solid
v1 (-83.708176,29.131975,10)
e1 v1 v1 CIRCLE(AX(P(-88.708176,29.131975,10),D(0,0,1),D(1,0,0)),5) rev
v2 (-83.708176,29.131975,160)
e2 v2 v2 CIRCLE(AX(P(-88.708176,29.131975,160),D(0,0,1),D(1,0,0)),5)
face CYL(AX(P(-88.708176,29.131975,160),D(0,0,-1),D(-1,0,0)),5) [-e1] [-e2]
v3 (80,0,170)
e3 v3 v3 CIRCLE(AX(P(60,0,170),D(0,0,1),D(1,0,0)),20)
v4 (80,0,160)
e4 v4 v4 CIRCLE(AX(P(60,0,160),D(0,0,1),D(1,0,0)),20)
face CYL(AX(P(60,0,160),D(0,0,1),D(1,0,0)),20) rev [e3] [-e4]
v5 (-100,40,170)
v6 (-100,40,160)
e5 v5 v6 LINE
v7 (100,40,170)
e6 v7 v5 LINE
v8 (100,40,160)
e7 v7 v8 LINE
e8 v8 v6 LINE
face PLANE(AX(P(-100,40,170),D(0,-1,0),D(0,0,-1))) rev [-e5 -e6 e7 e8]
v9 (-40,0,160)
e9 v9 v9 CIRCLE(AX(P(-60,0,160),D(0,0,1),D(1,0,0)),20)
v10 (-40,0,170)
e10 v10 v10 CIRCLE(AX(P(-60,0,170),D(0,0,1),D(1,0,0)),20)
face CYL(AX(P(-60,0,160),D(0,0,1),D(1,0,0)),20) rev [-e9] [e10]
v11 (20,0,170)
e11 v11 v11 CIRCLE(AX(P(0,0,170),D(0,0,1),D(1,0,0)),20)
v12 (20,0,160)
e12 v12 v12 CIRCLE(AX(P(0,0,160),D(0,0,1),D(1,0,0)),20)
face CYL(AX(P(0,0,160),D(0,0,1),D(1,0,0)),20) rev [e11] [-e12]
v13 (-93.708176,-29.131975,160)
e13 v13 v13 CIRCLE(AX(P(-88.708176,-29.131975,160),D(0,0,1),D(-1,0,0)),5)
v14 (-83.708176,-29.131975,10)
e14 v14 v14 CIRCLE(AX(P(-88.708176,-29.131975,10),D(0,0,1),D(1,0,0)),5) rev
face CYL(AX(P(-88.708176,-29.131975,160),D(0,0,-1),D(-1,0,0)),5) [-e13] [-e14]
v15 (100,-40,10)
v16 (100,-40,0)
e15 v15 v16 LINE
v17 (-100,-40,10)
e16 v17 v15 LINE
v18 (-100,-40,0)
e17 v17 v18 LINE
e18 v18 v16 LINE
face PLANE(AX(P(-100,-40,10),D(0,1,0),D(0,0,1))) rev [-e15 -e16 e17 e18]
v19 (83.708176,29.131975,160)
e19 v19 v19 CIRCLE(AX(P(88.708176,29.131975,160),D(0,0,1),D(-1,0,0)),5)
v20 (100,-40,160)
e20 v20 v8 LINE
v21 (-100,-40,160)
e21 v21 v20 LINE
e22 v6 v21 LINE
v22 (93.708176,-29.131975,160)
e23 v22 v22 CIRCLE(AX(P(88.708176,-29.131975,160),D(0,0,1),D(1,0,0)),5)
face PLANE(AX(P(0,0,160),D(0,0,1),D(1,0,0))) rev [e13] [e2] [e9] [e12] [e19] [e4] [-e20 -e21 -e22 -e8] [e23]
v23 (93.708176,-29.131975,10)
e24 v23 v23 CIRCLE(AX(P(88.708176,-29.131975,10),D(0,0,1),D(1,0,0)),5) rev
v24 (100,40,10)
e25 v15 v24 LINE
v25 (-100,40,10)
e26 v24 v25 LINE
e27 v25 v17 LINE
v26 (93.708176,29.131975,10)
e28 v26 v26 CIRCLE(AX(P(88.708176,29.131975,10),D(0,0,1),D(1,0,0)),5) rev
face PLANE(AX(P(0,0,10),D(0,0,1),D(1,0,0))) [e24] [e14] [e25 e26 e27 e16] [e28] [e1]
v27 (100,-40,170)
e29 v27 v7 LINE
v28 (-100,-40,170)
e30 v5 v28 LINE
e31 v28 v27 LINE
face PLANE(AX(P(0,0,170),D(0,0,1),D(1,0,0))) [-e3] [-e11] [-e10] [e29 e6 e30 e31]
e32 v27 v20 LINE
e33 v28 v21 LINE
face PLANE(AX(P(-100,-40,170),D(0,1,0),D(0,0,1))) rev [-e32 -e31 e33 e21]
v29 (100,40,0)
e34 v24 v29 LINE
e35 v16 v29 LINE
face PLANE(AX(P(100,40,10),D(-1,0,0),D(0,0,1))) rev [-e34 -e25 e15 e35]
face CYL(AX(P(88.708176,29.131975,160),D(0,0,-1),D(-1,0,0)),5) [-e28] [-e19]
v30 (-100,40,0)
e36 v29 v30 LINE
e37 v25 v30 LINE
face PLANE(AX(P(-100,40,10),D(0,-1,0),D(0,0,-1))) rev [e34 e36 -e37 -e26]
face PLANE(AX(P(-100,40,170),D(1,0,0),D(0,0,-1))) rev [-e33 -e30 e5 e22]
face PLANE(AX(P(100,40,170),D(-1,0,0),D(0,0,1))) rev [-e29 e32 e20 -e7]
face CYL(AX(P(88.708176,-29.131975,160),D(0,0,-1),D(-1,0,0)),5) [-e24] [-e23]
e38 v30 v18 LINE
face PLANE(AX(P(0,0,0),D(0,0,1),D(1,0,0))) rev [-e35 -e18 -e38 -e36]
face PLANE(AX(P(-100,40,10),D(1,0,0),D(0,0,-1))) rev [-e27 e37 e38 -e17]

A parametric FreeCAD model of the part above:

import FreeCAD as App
import Part
import Sketcher
from FreeCAD import Vector
Q = App.Units.Quantity


def add_polygon(sketch, points):
    """Adds a closed chain of lines whose ends are joined by coincident constraints."""
    first, n = sketch.GeometryCount, len(points)
    for a, b in zip(points, points[1:] + points[:1]):
        sketch.addGeometry(Part.LineSegment(App.Vector(*a, 0), App.Vector(*b, 0)), False)
    for i in range(n):
        sketch.addConstraint(Sketcher.Constraint("Coincident", first + i, 2, first + (i + 1) % n, 1))

doc = App.newDocument("Part")
params = doc.addObject("Spreadsheet::Sheet", "Params")
for row, (alias, value) in enumerate([
    ("sketch1_width", "200 mm"),
    ("sketch1_height", "80 mm"),
    ("pad1_length", "10 mm"),
    ("sketch2_diameter", "10 mm"),
    ("pad2_length", "160 mm"),
    ("sketch3_width", "200 mm"),
    ("sketch3_height", "80 mm"),
    ("pad3_length", "10 mm"),
    ("sketch4_diameter", "40 mm"),
    ("pocket1_length", "10 mm"),
], start=1):
    params.set(f"A{row}", alias)
    params.set(f"B{row}", "=" + value)
    params.setAlias(f"B{row}", alias)

body = doc.addObject("PartDesign::Body", "Body")

# Sketch on XY plane
sketch1 = doc.addObject("Sketcher::SketchObject", "Sketch")
body.addObject(sketch1)
sketch1.AttachmentSupport = (doc.XY_Plane, [""])
sketch1.MapMode = "FlatFace"
add_polygon(sketch1, [(-100, 40), (-100, -40), (100, -40), (100, 40)])  # lines 0-3
sketch1.addConstraint(Sketcher.Constraint("Vertical", 0))
sketch1.addConstraint(Sketcher.Constraint("Horizontal", 1))
sketch1.addConstraint(Sketcher.Constraint("Vertical", 2))
sketch1.addConstraint(Sketcher.Constraint("Horizontal", 3))
sketch1.addConstraint(Sketcher.Constraint("Symmetric", 0, 2, 2, 2, -1, 1))
sketch1.addConstraint(Sketcher.Constraint("DistanceX", 1, 1, 1, 2, Q("200 mm")))
sketch1.addConstraint(Sketcher.Constraint("DistanceY", 0, 2, 0, 1, Q("80 mm")))
sketch1.setExpression("Constraints[9]", "Params.sketch1_width")
sketch1.setExpression("Constraints[10]", "Params.sketch1_height")
pad1 = doc.addObject("PartDesign::Pad", "Pad")
body.addObject(pad1)
pad1.Profile = sketch1
pad1.setExpression("Length", "Params.pad1_length")

# Sketch on XY plane
sketch2 = doc.addObject("Sketcher::SketchObject", "Sketch001")
body.addObject(sketch2)
sketch2.AttachmentSupport = (doc.XY_Plane, [""])
sketch2.MapMode = "FlatFace"
sketch2.addGeometry(Part.Circle(Vector(-88.708176, 29.131975, 0), Vector(0, 0, 1), 5), False)
sketch2.addGeometry(Part.Circle(Vector(88.708176, 29.131975, 0), Vector(0, 0, 1), 5), False)
sketch2.addGeometry(Part.Circle(Vector(88.708176, -29.131975, 0), Vector(0, 0, 1), 5), False)
sketch2.addGeometry(Part.Circle(Vector(-88.708176, -29.131975, 0), Vector(0, 0, 1), 5), False)
sketch2.addConstraint(Sketcher.Constraint("Equal", 0, 1))
sketch2.addConstraint(Sketcher.Constraint("Equal", 1, 2))
sketch2.addConstraint(Sketcher.Constraint("Equal", 2, 3))
sketch2.addConstraint(Sketcher.Constraint("Symmetric", 0, 3, 2, 3, -1, 1))
sketch2.addConstraint(Sketcher.Constraint("Symmetric", 1, 3, 3, 3, -1, 1))
sketch2.addConstraint(Sketcher.Constraint("Symmetric", 0, 3, 1, 3, -2))
sketch2.addConstraint(Sketcher.Constraint("Diameter", 0, Q("10 mm")))
sketch2.addConstraint(Sketcher.Constraint("DistanceX", 0, 3, 1, 3, Q("177.416351 mm")))
sketch2.addConstraint(Sketcher.Constraint("DistanceY", 2, 3, 1, 3, Q("58.26395 mm")))
sketch2.setExpression("Constraints[6]", "Params.sketch2_diameter")
pad2 = doc.addObject("PartDesign::Pad", "Pad001")
body.addObject(pad2)
pad2.Profile = sketch2
pad2.setExpression("Length", "Params.pad2_length")

# Sketch on XY plane
sketch3 = doc.addObject("Sketcher::SketchObject", "Sketch002")
body.addObject(sketch3)
sketch3.AttachmentSupport = (doc.XY_Plane, [""])
sketch3.MapMode = "FlatFace"
sketch3.AttachmentOffset = App.Placement(Vector(0, 0, 160), App.Rotation())
add_polygon(sketch3, [(-100, 40), (-100, -40), (100, -40), (100, 40)])  # lines 0-3
sketch3.addConstraint(Sketcher.Constraint("Vertical", 0))
sketch3.addConstraint(Sketcher.Constraint("Horizontal", 1))
sketch3.addConstraint(Sketcher.Constraint("Vertical", 2))
sketch3.addConstraint(Sketcher.Constraint("Horizontal", 3))
sketch3.addConstraint(Sketcher.Constraint("Symmetric", 0, 2, 2, 2, -1, 1))
sketch3.addConstraint(Sketcher.Constraint("DistanceX", 1, 1, 1, 2, Q("200 mm")))
sketch3.addConstraint(Sketcher.Constraint("DistanceY", 0, 2, 0, 1, Q("80 mm")))
sketch3.setExpression("Constraints[9]", "Params.sketch3_width")
sketch3.setExpression("Constraints[10]", "Params.sketch3_height")
pad3 = doc.addObject("PartDesign::Pad", "Pad002")
body.addObject(pad3)
pad3.Profile = sketch3
pad3.setExpression("Length", "Params.pad3_length")

# Sketch on XY plane
sketch4 = doc.addObject("Sketcher::SketchObject", "Sketch003")
body.addObject(sketch4)
sketch4.AttachmentSupport = (doc.XY_Plane, [""])
sketch4.MapMode = "FlatFace"
sketch4.AttachmentOffset = App.Placement(Vector(0, 0, 170), App.Rotation())
sketch4.addGeometry(Part.Circle(Vector(0, 0, 0), Vector(0, 0, 1), 20), False)
sketch4.addGeometry(Part.Circle(Vector(-60, 0, 0), Vector(0, 0, 1), 20), False)
sketch4.addGeometry(Part.Circle(Vector(60, 0, 0), Vector(0, 0, 1), 20), False)
sketch4.addConstraint(Sketcher.Constraint("Coincident", 0, 3, -1, 1))
sketch4.addConstraint(Sketcher.Constraint("Equal", 0, 1))
sketch4.addConstraint(Sketcher.Constraint("Equal", 1, 2))
sketch4.addConstraint(Sketcher.Constraint("Symmetric", 1, 3, 2, 3, -1, 1))
sketch4.addConstraint(Sketcher.Constraint("PointOnObject", 1, 3, -1))
sketch4.addConstraint(Sketcher.Constraint("Diameter", 0, Q("40 mm")))
sketch4.addConstraint(Sketcher.Constraint("DistanceX", 1, 3, -1, 1, Q("60 mm")))
sketch4.setExpression("Constraints[5]", "Params.sketch4_diameter")
pocket1 = doc.addObject("PartDesign::Pocket", "Pocket")
body.addObject(pocket1)
pocket1.Profile = sketch4
pocket1.setExpression("Length", "Params.pocket1_length")

doc.recompute()
